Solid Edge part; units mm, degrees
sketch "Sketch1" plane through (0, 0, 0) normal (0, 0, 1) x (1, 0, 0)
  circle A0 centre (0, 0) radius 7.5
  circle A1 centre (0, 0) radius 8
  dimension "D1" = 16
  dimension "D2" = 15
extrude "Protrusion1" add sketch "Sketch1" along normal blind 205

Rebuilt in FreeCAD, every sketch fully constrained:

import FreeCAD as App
import Part
import Sketcher

V = App.Vector
Q = App.Units.Quantity

doc = App.newDocument("Part")
body = doc.addObject("PartDesign::Body", "Body")

sketch1 = body.newObject("Sketcher::SketchObject", "Sketch")
sketch1.AttachmentSupport = (doc.getObject("XY_Plane"), [""])
sketch1.MapMode = "FlatFace"
sketch1.addGeometry([
    Part.Circle(V(0, 0, 0), V(0, 0, 1), 8),
    Part.Circle(V(0, 0, 0), V(0, 0, 1), 7.5),
], False)
sketch1.addConstraint([
    Sketcher.Constraint("Coincident", 0, 3, -1, 1),
    Sketcher.Constraint("Coincident", 1, 3, -1, 1),
    Sketcher.Constraint("Diameter", 0, Q("16 mm")),
    Sketcher.Constraint("Diameter", 1, Q("15 mm")),
])
pad1 = body.newObject("PartDesign::Pad", "Pad")
pad1.Profile = sketch1
pad1.Length = 205

doc.recompute()
